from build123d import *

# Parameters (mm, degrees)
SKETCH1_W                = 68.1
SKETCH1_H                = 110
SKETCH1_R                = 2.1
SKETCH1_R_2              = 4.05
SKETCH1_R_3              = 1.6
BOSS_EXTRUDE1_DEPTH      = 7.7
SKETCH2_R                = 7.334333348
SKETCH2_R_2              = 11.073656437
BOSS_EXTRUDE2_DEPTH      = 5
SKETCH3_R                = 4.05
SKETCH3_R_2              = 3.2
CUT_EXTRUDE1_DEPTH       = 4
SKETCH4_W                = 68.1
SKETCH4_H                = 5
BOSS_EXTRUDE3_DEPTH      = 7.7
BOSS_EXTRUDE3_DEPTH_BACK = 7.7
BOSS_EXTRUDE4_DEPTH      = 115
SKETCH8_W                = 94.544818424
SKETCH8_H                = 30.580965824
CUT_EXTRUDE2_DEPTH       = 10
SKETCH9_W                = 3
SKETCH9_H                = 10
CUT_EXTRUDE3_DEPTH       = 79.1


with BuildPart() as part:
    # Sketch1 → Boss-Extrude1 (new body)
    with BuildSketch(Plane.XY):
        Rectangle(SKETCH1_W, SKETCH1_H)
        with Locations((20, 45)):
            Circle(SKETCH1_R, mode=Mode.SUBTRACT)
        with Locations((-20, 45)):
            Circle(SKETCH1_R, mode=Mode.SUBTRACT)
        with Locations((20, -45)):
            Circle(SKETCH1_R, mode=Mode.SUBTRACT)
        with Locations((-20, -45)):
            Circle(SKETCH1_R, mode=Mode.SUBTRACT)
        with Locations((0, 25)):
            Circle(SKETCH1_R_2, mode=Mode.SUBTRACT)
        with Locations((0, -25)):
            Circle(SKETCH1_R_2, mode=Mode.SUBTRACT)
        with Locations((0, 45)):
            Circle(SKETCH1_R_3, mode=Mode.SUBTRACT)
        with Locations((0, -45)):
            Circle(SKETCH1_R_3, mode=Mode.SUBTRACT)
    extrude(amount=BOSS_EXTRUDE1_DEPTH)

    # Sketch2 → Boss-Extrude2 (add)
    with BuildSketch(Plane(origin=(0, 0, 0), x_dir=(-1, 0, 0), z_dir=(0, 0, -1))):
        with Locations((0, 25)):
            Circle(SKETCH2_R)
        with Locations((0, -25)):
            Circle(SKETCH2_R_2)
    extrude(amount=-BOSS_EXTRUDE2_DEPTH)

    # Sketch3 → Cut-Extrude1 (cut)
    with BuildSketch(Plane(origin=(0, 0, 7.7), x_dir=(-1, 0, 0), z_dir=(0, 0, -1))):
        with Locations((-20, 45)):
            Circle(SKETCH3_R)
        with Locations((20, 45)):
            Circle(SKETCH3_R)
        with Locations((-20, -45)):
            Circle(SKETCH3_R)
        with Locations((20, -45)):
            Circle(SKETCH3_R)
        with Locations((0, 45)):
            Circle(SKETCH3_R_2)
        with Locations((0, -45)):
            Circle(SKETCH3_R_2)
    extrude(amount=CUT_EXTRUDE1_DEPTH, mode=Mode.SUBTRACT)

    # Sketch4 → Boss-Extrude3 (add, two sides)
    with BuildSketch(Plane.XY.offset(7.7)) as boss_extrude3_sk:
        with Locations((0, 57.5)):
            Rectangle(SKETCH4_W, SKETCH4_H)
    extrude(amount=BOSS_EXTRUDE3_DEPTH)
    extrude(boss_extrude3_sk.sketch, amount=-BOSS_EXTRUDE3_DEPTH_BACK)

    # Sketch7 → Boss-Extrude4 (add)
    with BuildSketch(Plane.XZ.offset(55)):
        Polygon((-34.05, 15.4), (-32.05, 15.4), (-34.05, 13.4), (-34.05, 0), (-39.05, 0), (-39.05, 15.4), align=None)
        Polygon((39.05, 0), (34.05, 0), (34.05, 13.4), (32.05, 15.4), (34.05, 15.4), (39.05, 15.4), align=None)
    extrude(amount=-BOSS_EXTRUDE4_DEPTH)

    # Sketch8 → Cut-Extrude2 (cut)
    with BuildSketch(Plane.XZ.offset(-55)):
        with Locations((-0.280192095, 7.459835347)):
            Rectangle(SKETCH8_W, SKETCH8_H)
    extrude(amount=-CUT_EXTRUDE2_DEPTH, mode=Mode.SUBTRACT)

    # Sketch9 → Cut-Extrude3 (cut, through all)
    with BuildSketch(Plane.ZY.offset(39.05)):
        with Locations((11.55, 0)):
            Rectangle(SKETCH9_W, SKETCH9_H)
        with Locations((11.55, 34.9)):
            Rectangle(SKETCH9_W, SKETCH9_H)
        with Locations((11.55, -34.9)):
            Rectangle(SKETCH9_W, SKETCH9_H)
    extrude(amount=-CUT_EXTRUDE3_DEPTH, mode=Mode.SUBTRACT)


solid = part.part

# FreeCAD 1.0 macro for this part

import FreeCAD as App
import Part
import Sketcher

V = App.Vector
Q = App.Units.Quantity

doc = App.newDocument("Part")
body = doc.addObject("PartDesign::Body", "Body")

# Sketch on XY plane
sketch1 = doc.addObject("Sketcher::SketchObject", "Sketch")
body.addObject(sketch1)
sketch1.AttachmentSupport = (doc.XY_Plane, [""])
sketch1.MapMode = "FlatFace"
sketch1.addGeometry(Part.LineSegment(V(-34.05, 55, 0), V(-34.05, -55, 0)), False)
sketch1.addGeometry(Part.LineSegment(V(-34.05, -55, 0), V(34.05, -55, 0)), False)
sketch1.addGeometry(Part.LineSegment(V(34.05, -55, 0), V(34.05, 55, 0)), False)
sketch1.addGeometry(Part.LineSegment(V(34.05, 55, 0), V(-34.05, 55, 0)), False)
sketch1.addGeometry(Part.Circle(V(-20, -45, 0), V(0, 0, 1), 2.1), False)
sketch1.addGeometry(Part.Circle(V(0, -45, 0), V(0, 0, 1), 1.6), False)
sketch1.addGeometry(Part.Circle(V(0, -25, 0), V(0, 0, 1), 4.05), False)
sketch1.addGeometry(Part.Circle(V(20, -45, 0), V(0, 0, 1), 2.1), False)
sketch1.addGeometry(Part.Circle(V(-20, 45, 0), V(0, 0, 1), 2.1), False)
sketch1.addGeometry(Part.Circle(V(0, 25, 0), V(0, 0, 1), 4.05), False)
sketch1.addGeometry(Part.Circle(V(0, 45, 0), V(0, 0, 1), 1.6), False)
sketch1.addGeometry(Part.Circle(V(20, 45, 0), V(0, 0, 1), 2.1), False)
sketch1.addConstraint(Sketcher.Constraint("Coincident", 0, 2, 1, 1))
sketch1.addConstraint(Sketcher.Constraint("Coincident", 1, 2, 2, 1))
sketch1.addConstraint(Sketcher.Constraint("Coincident", 2, 2, 3, 1))
sketch1.addConstraint(Sketcher.Constraint("Coincident", 3, 2, 0, 1))
sketch1.addConstraint(Sketcher.Constraint("Vertical", 0))
sketch1.addConstraint(Sketcher.Constraint("Horizontal", 1))
sketch1.addConstraint(Sketcher.Constraint("Vertical", 2))
sketch1.addConstraint(Sketcher.Constraint("Horizontal", 3))
sketch1.addConstraint(Sketcher.Constraint("Equal", 4, 7))
sketch1.addConstraint(Sketcher.Constraint("Equal", 7, 8))
sketch1.addConstraint(Sketcher.Constraint("Equal", 6, 9))
sketch1.addConstraint(Sketcher.Constraint("Equal", 5, 10))
sketch1.addConstraint(Sketcher.Constraint("Equal", 8, 11))
sketch1.addConstraint(Sketcher.Constraint("Symmetric", 7, 3, 8, 3, -1, 1))
sketch1.addConstraint(Sketcher.Constraint("Symmetric", 6, 3, 9, 3, -1, 1))
sketch1.addConstraint(Sketcher.Constraint("Symmetric", 5, 3, 10, 3, -1, 1))
sketch1.addConstraint(Sketcher.Constraint("Symmetric", 4, 3, 11, 3, -1, 1))
sketch1.addConstraint(Sketcher.Constraint("Symmetric", 0, 2, 2, 2, -1, 1))
sketch1.addConstraint(Sketcher.Constraint("Symmetric", 4, 3, 7, 3, -2))
sketch1.addConstraint(Sketcher.Constraint("PointOnObject", 5, 3, -2))
sketch1.addConstraint(Sketcher.Constraint("PointOnObject", 6, 3, -2))
sketch1.addConstraint(Sketcher.Constraint("Horizontal", 4, 3, 5, 3))
sketch1.addConstraint(Sketcher.Constraint("Diameter", 4, Q("4.2 mm")))
sketch1.addConstraint(Sketcher.Constraint("Diameter", 5, Q("3.2 mm")))
sketch1.addConstraint(Sketcher.Constraint("Diameter", 6, Q("8.1 mm")))
sketch1.addConstraint(Sketcher.Constraint("DistanceY", 0, 2, 0, 1, Q("110 mm")))
sketch1.addConstraint(Sketcher.Constraint("DistanceX", 1, 1, 1, 2, Q("68.1 mm")))
sketch1.addConstraint(Sketcher.Constraint("DistanceX", 4, 3, -1, 1, Q("20 mm")))
sketch1.addConstraint(Sketcher.Constraint("DistanceY", 4, 3, -1, 1, Q("45 mm")))
sketch1.addConstraint(Sketcher.Constraint("DistanceY", 6, 3, -1, 1, Q("25 mm")))
pad1 = doc.addObject("PartDesign::Pad", "Pad")
body.addObject(pad1)
pad1.Profile = sketch1
pad1.Length = 7.7

# Sketch on XY plane
sketch2 = doc.addObject("Sketcher::SketchObject", "Sketch001")
body.addObject(sketch2)
sketch2.AttachmentSupport = (doc.XY_Plane, [""])
sketch2.MapMode = "FlatFace"
sketch2.addGeometry(Part.Circle(V(0, 25, 0), V(0, 0, 1), 7.334333), False)
sketch2.addGeometry(Part.Circle(V(0, -25, 0), V(0, 0, 1), 11.073656), False)
sketch2.addConstraint(Sketcher.Constraint("Symmetric", 0, 3, 1, 3, -1, 1))
sketch2.addConstraint(Sketcher.Constraint("PointOnObject", 0, 3, -2))
sketch2.addConstraint(Sketcher.Constraint("DistanceY", -1, 1, 0, 3, Q("25 mm")))
sketch2.addConstraint(Sketcher.Constraint("Diameter", 0, Q("14.668667 mm")))
sketch2.addConstraint(Sketcher.Constraint("Diameter", 1, Q("22.147313 mm")))
pad2 = doc.addObject("PartDesign::Pad", "Pad001")
body.addObject(pad2)
pad2.Profile = sketch2
pad2.Length = 5

# Sketch on XY plane
sketch3 = doc.addObject("Sketcher::SketchObject", "Sketch002")
body.addObject(sketch3)
sketch3.AttachmentSupport = (doc.XY_Plane, [""])
sketch3.MapMode = "FlatFace"
sketch3.AttachmentOffset = App.Placement(V(0, 0, 7.7), App.Rotation())
sketch3.addGeometry(Part.Circle(V(20, 45, 0), V(0, 0, 1), 4.05), False)
sketch3.addGeometry(Part.Circle(V(-20, 45, 0), V(0, 0, 1), 4.05), False)
sketch3.addGeometry(Part.Circle(V(20, -45, 0), V(0, 0, 1), 4.05), False)
sketch3.addGeometry(Part.Circle(V(-20, -45, 0), V(0, 0, 1), 4.05), False)
sketch3.addGeometry(Part.Circle(V(0, 45, 0), V(0, 0, 1), 3.2), False)
sketch3.addGeometry(Part.Circle(V(0, -45, 0), V(0, 0, 1), 3.2), False)
sketch3.addConstraint(Sketcher.Constraint("Equal", 0, 1))
sketch3.addConstraint(Sketcher.Constraint("Equal", 1, 2))
sketch3.addConstraint(Sketcher.Constraint("Equal", 2, 3))
sketch3.addConstraint(Sketcher.Constraint("Equal", 4, 5))
sketch3.addConstraint(Sketcher.Constraint("Symmetric", 1, 3, 2, 3, -1, 1))
sketch3.addConstraint(Sketcher.Constraint("Symmetric", 0, 3, 3, 3, -1, 1))
sketch3.addConstraint(Sketcher.Constraint("Symmetric", 4, 3, 5, 3, -1, 1))
sketch3.addConstraint(Sketcher.Constraint("Symmetric", 0, 3, 1, 3, -2))
sketch3.addConstraint(Sketcher.Constraint("PointOnObject", 4, 3, -2))
sketch3.addConstraint(Sketcher.Constraint("Horizontal", 1, 3, 4, 3))
sketch3.addConstraint(Sketcher.Constraint("Diameter", 0, Q("8.1 mm")))
sketch3.addConstraint(Sketcher.Constraint("Diameter", 4, Q("6.4 mm")))
sketch3.addConstraint(Sketcher.Constraint("DistanceX", -1, 1, 0, 3, Q("20 mm")))
sketch3.addConstraint(Sketcher.Constraint("DistanceY", -1, 1, 0, 3, Q("45 mm")))
pocket1 = doc.addObject("PartDesign::Pocket", "Pocket")
body.addObject(pocket1)
pocket1.Profile = sketch3
pocket1.Length = 4

# Sketch on XY plane
sketch4 = doc.addObject("Sketcher::SketchObject", "Sketch003")
body.addObject(sketch4)
sketch4.AttachmentSupport = (doc.XY_Plane, [""])
sketch4.MapMode = "FlatFace"
sketch4.AttachmentOffset = App.Placement(V(0, 0, 7.7), App.Rotation())
sketch4.addGeometry(Part.LineSegment(V(-34.05, 60, 0), V(-34.05, 55, 0)), False)
sketch4.addGeometry(Part.LineSegment(V(-34.05, 55, 0), V(34.05, 55, 0)), False)
sketch4.addGeometry(Part.LineSegment(V(34.05, 55, 0), V(34.05, 60, 0)), False)
sketch4.addGeometry(Part.LineSegment(V(34.05, 60, 0), V(-34.05, 60, 0)), False)
sketch4.addConstraint(Sketcher.Constraint("Coincident", 0, 2, 1, 1))
sketch4.addConstraint(Sketcher.Constraint("Coincident", 1, 2, 2, 1))
sketch4.addConstraint(Sketcher.Constraint("Coincident", 2, 2, 3, 1))
sketch4.addConstraint(Sketcher.Constraint("Coincident", 3, 2, 0, 1))
sketch4.addConstraint(Sketcher.Constraint("Vertical", 0))
sketch4.addConstraint(Sketcher.Constraint("Horizontal", 1))
sketch4.addConstraint(Sketcher.Constraint("Vertical", 2))
sketch4.addConstraint(Sketcher.Constraint("Horizontal", 3))
sketch4.addConstraint(Sketcher.Constraint("DistanceY", 0, 2, 0, 1, Q("5 mm")))
sketch4.addConstraint(Sketcher.Constraint("DistanceX", 1, 1, 1, 2, Q("68.1 mm")))
sketch4.addConstraint(Sketcher.Constraint("DistanceY", -1, 1, 0, 2, Q("55 mm")))
sketch4.addConstraint(Sketcher.Constraint("DistanceX", 0, 2, -1, 1, Q("34.05 mm")))
pad3 = doc.addObject("PartDesign::Pad", "Pad002")
body.addObject(pad3)
pad3.Profile = sketch4
pad3.Type = "TwoLengths"
pad3.Length = 7.7
pad3.Length2 = 7.7

# Sketch on XZ plane
sketch5 = doc.addObject("Sketcher::SketchObject", "Sketch004")
body.addObject(sketch5)
sketch5.AttachmentSupport = (doc.XZ_Plane, [""])
sketch5.MapMode = "FlatFace"
sketch5.AttachmentOffset = App.Placement(V(0, 0, 55), App.Rotation())
sketch5.addGeometry(Part.LineSegment(V(-32.05, 15.4, 0), V(-39.05, 15.4, 0)), False)
sketch5.addGeometry(Part.LineSegment(V(-39.05, 15.4, 0), V(-39.05, 0, 0)), False)
sketch5.addGeometry(Part.LineSegment(V(-39.05, 0, 0), V(-34.05, 0, 0)), False)
sketch5.addGeometry(Part.LineSegment(V(-34.05, 0, 0), V(-34.05, 13.4, 0)), False)
sketch5.addGeometry(Part.LineSegment(V(-34.05, 13.4, 0), V(-32.05, 15.4, 0)), False)
sketch5.addGeometry(Part.LineSegment(V(34.05, 0, 0), V(39.05, 0, 0)), False)
sketch5.addGeometry(Part.LineSegment(V(39.05, 0, 0), V(39.05, 15.4, 0)), False)
sketch5.addGeometry(Part.LineSegment(V(39.05, 15.4, 0), V(32.05, 15.4, 0)), False)
sketch5.addGeometry(Part.LineSegment(V(32.05, 15.4, 0), V(34.05, 13.4, 0)), False)
sketch5.addGeometry(Part.LineSegment(V(34.05, 13.4, 0), V(34.05, 0, 0)), False)
sketch5.addConstraint(Sketcher.Constraint("Coincident", 0, 2, 1, 1))
sketch5.addConstraint(Sketcher.Constraint("Coincident", 1, 2, 2, 1))
sketch5.addConstraint(Sketcher.Constraint("Coincident", 2, 2, 3, 1))
sketch5.addConstraint(Sketcher.Constraint("Coincident", 3, 2, 4, 1))
sketch5.addConstraint(Sketcher.Constraint("Coincident", 4, 2, 0, 1))
sketch5.addConstraint(Sketcher.Constraint("Coincident", 5, 2, 6, 1))
sketch5.addConstraint(Sketcher.Constraint("Coincident", 6, 2, 7, 1))
sketch5.addConstraint(Sketcher.Constraint("Coincident", 7, 2, 8, 1))
sketch5.addConstraint(Sketcher.Constraint("Coincident", 8, 2, 9, 1))
sketch5.addConstraint(Sketcher.Constraint("Coincident", 9, 2, 5, 1))
sketch5.addConstraint(Sketcher.Constraint("Horizontal", 0))
sketch5.addConstraint(Sketcher.Constraint("Vertical", 1))
sketch5.addConstraint(Sketcher.Constraint("Horizontal", 2))
sketch5.addConstraint(Sketcher.Constraint("Vertical", 3))
sketch5.addConstraint(Sketcher.Constraint("Horizontal", 5))
sketch5.addConstraint(Sketcher.Constraint("Vertical", 6))
sketch5.addConstraint(Sketcher.Constraint("Horizontal", 7))
sketch5.addConstraint(Sketcher.Constraint("Vertical", 9))
sketch5.addConstraint(Sketcher.Constraint("Symmetric", 1, 2, 5, 2, -1, 1))
sketch5.addConstraint(Sketcher.Constraint("Symmetric", 4, 2, 7, 2, -2))
sketch5.addConstraint(Sketcher.Constraint("Symmetric", 3, 2, 8, 2, -2))
sketch5.addConstraint(Sketcher.Constraint("PointOnObject", 1, 2, -1))
sketch5.addConstraint(Sketcher.Constraint("Perpendicular", 4, 8))
sketch5.addConstraint(Sketcher.Constraint("DistanceX", 0, 2, 0, 1, Q("7 mm")))
sketch5.addConstraint(Sketcher.Constraint("DistanceX", 2, 1, 2, 2, Q("5 mm")))
sketch5.addConstraint(Sketcher.Constraint("DistanceY", 1, 2, 1, 1, Q("15.4 mm")))
sketch5.addConstraint(Sketcher.Constraint("DistanceX", 4, 2, 5, 2, Q("71.1 mm")))
pad4 = doc.addObject("PartDesign::Pad", "Pad003")
body.addObject(pad4)
pad4.Profile = sketch5
pad4.Length = 115
pad4.Reversed = True

# Sketch on XZ plane
sketch6 = doc.addObject("Sketcher::SketchObject", "Sketch005")
body.addObject(sketch6)
sketch6.AttachmentSupport = (doc.XZ_Plane, [""])
sketch6.MapMode = "FlatFace"
sketch6.AttachmentOffset = App.Placement(V(0, 0, -55), App.Rotation())
sketch6.addGeometry(Part.LineSegment(V(-47.552601, 22.750318, 0), V(-47.552601, -7.830648, 0)), False)
sketch6.addGeometry(Part.LineSegment(V(-47.552601, -7.830648, 0), V(46.992217, -7.830648, 0)), False)
sketch6.addGeometry(Part.LineSegment(V(46.992217, -7.830648, 0), V(46.992217, 22.750318, 0)), False)
sketch6.addGeometry(Part.LineSegment(V(46.992217, 22.750318, 0), V(-47.552601, 22.750318, 0)), False)
sketch6.addConstraint(Sketcher.Constraint("Coincident", 0, 2, 1, 1))
sketch6.addConstraint(Sketcher.Constraint("Coincident", 1, 2, 2, 1))
sketch6.addConstraint(Sketcher.Constraint("Coincident", 2, 2, 3, 1))
sketch6.addConstraint(Sketcher.Constraint("Coincident", 3, 2, 0, 1))
sketch6.addConstraint(Sketcher.Constraint("Vertical", 0))
sketch6.addConstraint(Sketcher.Constraint("Horizontal", 1))
sketch6.addConstraint(Sketcher.Constraint("Vertical", 2))
sketch6.addConstraint(Sketcher.Constraint("Horizontal", 3))
sketch6.addConstraint(Sketcher.Constraint("DistanceX", 1, 1, 1, 2, Q("94.544818 mm")))
sketch6.addConstraint(Sketcher.Constraint("DistanceX", 0, 2, -1, 1, Q("47.552601 mm")))
sketch6.addConstraint(Sketcher.Constraint("DistanceY", 0, 2, 0, 1, Q("30.580966 mm")))
sketch6.addConstraint(Sketcher.Constraint("DistanceY", -1, 1, 2, 2, Q("22.750318 mm")))
pocket2 = doc.addObject("PartDesign::Pocket", "Pocket001")
body.addObject(pocket2)
pocket2.Profile = sketch6
pocket2.Length = 10

# Sketch on YZ plane
sketch7 = doc.addObject("Sketcher::SketchObject", "Sketch006")
body.addObject(sketch7)
sketch7.AttachmentSupport = (doc.YZ_Plane, [""])
sketch7.MapMode = "FlatFace"
sketch7.AttachmentOffset = App.Placement(V(0, 0, -39.05), App.Rotation())
sketch7.addGeometry(Part.LineSegment(V(5, 10.05, 0), V(-5, 10.05, 0)), False)
sketch7.addGeometry(Part.LineSegment(V(-5, 10.05, 0), V(-5, 13.05, 0)), False)
sketch7.addGeometry(Part.LineSegment(V(-5, 13.05, 0), V(5, 13.05, 0)), False)
sketch7.addGeometry(Part.LineSegment(V(5, 13.05, 0), V(5, 10.05, 0)), False)
sketch7.addGeometry(Part.LineSegment(V(39.9, 10.05, 0), V(29.9, 10.05, 0)), False)
sketch7.addGeometry(Part.LineSegment(V(29.9, 10.05, 0), V(29.9, 13.05, 0)), False)
sketch7.addGeometry(Part.LineSegment(V(29.9, 13.05, 0), V(39.9, 13.05, 0)), False)
sketch7.addGeometry(Part.LineSegment(V(39.9, 13.05, 0), V(39.9, 10.05, 0)), False)
sketch7.addGeometry(Part.LineSegment(V(-29.9, 10.05, 0), V(-39.9, 10.05, 0)), False)
sketch7.addGeometry(Part.LineSegment(V(-39.9, 10.05, 0), V(-39.9, 13.05, 0)), False)
sketch7.addGeometry(Part.LineSegment(V(-39.9, 13.05, 0), V(-29.9, 13.05, 0)), False)
sketch7.addGeometry(Part.LineSegment(V(-29.9, 13.05, 0), V(-29.9, 10.05, 0)), False)
sketch7.addConstraint(Sketcher.Constraint("Coincident", 0, 2, 1, 1))
sketch7.addConstraint(Sketcher.Constraint("Coincident", 1, 2, 2, 1))
sketch7.addConstraint(Sketcher.Constraint("Coincident", 2, 2, 3, 1))
sketch7.addConstraint(Sketcher.Constraint("Coincident", 3, 2, 0, 1))
sketch7.addConstraint(Sketcher.Constraint("Coincident", 4, 2, 5, 1))
sketch7.addConstraint(Sketcher.Constraint("Coincident", 5, 2, 6, 1))
sketch7.addConstraint(Sketcher.Constraint("Coincident", 6, 2, 7, 1))
sketch7.addConstraint(Sketcher.Constraint("Coincident", 7, 2, 4, 1))
sketch7.addConstraint(Sketcher.Constraint("Coincident", 8, 2, 9, 1))
sketch7.addConstraint(Sketcher.Constraint("Coincident", 9, 2, 10, 1))
sketch7.addConstraint(Sketcher.Constraint("Coincident", 10, 2, 11, 1))
sketch7.addConstraint(Sketcher.Constraint("Coincident", 11, 2, 8, 1))
sketch7.addConstraint(Sketcher.Constraint("Horizontal", 0))
sketch7.addConstraint(Sketcher.Constraint("Vertical", 1))
sketch7.addConstraint(Sketcher.Constraint("Horizontal", 2))
sketch7.addConstraint(Sketcher.Constraint("Vertical", 3))
sketch7.addConstraint(Sketcher.Constraint("Horizontal", 4))
sketch7.addConstraint(Sketcher.Constraint("Vertical", 5))
sketch7.addConstraint(Sketcher.Constraint("Horizontal", 6))
sketch7.addConstraint(Sketcher.Constraint("Vertical", 7))
sketch7.addConstraint(Sketcher.Constraint("Horizontal", 8))
sketch7.addConstraint(Sketcher.Constraint("Vertical", 9))
sketch7.addConstraint(Sketcher.Constraint("Horizontal", 10))
sketch7.addConstraint(Sketcher.Constraint("Vertical", 11))
sketch7.addConstraint(Sketcher.Constraint("Symmetric", 7, 2, 8, 2, -2))
sketch7.addConstraint(Sketcher.Constraint("Symmetric", 5, 2, 10, 2, -2))
sketch7.addConstraint(Sketcher.Constraint("Horizontal", 3, 2, 4, 2))
sketch7.addConstraint(Sketcher.Constraint("Horizontal", 2, 2, 5, 2))
sketch7.addConstraint(Sketcher.Constraint("Equal", 2, 4))
sketch7.addConstraint(Sketcher.Constraint("DistanceX", 0, 2, 0, 1, Q("10 mm")))
sketch7.addConstraint(Sketcher.Constraint("DistanceY", 1, 1, 1, 2, Q("3 mm")))
sketch7.addConstraint(Sketcher.Constraint("DistanceX", 0, 2, -1, 1, Q("5 mm")))
sketch7.addConstraint(Sketcher.Constraint("DistanceX", -1, 1, 4, 2, Q("29.9 mm")))
sketch7.addConstraint(Sketcher.Constraint("DistanceY", -1, 1, 0, 2, Q("10.05 mm")))
pocket3 = doc.addObject("PartDesign::Pocket", "Pocket002")
body.addObject(pocket3)
pocket3.Profile = sketch7
pocket3.Type = "ThroughAll"
pocket3.Reversed = True

doc.recompute()
